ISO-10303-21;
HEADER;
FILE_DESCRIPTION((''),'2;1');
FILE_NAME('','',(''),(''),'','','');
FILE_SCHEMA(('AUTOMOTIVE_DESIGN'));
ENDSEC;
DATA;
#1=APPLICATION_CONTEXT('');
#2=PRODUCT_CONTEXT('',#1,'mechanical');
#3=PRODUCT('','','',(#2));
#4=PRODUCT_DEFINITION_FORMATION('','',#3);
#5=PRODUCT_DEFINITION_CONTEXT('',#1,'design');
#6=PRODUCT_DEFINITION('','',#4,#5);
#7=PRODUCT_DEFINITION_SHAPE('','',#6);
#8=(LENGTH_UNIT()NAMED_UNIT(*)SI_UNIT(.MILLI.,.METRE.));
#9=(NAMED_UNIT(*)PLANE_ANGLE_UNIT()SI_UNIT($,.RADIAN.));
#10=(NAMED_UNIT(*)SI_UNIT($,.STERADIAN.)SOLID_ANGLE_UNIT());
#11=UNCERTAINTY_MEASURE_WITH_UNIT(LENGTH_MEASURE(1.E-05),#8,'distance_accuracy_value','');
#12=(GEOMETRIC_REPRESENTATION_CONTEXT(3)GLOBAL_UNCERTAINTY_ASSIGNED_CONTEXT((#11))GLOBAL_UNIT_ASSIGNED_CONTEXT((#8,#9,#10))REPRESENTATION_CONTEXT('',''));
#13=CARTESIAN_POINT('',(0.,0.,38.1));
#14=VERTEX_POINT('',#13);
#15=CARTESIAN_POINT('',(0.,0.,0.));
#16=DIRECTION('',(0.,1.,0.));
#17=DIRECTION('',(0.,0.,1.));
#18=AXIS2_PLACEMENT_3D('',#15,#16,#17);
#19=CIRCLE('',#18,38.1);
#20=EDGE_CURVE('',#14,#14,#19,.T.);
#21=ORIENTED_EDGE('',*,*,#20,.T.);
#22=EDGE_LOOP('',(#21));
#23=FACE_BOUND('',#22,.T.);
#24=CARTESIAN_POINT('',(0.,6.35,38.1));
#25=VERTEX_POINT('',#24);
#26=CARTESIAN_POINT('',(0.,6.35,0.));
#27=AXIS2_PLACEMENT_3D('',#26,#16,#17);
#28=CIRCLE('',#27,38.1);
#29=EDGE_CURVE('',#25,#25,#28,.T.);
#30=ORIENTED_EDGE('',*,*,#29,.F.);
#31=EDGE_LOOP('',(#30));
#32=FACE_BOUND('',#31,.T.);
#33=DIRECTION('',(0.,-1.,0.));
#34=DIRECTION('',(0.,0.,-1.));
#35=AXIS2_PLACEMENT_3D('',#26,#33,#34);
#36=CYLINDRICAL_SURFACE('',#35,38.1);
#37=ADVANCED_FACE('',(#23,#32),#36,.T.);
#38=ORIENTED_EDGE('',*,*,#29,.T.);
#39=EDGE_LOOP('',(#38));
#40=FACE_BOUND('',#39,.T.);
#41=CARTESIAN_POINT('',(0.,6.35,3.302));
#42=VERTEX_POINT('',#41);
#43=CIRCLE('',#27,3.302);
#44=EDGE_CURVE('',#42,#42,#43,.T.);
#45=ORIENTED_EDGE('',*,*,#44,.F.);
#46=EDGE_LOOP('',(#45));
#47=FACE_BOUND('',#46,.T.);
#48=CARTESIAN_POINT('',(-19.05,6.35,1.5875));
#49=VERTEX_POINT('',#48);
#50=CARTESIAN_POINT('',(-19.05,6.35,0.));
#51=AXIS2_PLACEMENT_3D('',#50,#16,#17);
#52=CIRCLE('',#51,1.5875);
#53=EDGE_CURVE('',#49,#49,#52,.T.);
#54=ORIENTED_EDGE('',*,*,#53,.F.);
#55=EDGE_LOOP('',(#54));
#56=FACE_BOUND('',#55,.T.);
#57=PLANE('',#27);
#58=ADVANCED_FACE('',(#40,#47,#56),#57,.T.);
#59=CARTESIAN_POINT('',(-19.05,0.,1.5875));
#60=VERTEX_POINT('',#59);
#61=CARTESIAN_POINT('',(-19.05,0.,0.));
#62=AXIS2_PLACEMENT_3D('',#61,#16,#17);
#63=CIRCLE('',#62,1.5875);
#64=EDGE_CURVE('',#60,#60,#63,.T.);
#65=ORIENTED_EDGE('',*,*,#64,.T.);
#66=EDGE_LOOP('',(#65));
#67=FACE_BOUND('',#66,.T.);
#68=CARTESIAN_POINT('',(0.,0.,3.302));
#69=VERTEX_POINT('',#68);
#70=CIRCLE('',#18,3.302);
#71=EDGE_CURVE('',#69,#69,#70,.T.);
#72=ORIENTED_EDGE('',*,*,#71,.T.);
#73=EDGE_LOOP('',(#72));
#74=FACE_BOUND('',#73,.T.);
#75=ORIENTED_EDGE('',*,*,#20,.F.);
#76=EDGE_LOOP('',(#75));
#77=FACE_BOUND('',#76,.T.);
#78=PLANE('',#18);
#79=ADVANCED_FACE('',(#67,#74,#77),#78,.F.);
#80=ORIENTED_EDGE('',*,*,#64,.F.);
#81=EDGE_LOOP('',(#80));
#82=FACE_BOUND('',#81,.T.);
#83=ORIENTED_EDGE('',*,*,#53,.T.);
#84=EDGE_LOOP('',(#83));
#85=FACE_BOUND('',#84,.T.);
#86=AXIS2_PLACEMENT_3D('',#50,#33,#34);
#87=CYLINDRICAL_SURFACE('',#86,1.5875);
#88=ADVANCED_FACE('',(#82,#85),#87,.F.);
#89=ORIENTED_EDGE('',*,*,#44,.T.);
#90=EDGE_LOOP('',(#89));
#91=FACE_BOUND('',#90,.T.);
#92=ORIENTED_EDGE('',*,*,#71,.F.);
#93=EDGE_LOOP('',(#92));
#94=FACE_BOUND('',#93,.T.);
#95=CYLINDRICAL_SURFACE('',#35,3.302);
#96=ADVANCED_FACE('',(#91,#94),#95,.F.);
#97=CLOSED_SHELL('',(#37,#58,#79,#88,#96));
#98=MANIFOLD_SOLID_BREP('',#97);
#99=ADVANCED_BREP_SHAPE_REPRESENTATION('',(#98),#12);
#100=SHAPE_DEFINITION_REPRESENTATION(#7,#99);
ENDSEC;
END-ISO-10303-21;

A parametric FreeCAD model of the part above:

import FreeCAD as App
import Part
import Sketcher
Q = App.Units.Quantity

doc = App.newDocument("Part")
params = doc.addObject("Spreadsheet::Sheet", "Params")
for row, (alias, value) in enumerate([
    ("sketch1_diameter", "3 in"),
    ("sketch1_diameter2", "0.26 in"),
    ("sketch1_diameter3", "0.125 in"),
    ("pad1_length", "0.25 in"),
], start=1):
    params.set(f"A{row}", alias)
    params.set(f"B{row}", "=" + value)
    params.setAlias(f"B{row}", alias)

body = doc.addObject("PartDesign::Body", "Body")

# Sketch on XZ plane
sketch1 = body.newObject("Sketcher::SketchObject", "Sketch")
sketch1.AttachmentSupport = (doc.getObject("XZ_Plane"), [""])
sketch1.MapMode = "FlatFace"
sketch1.addGeometry([
    Part.Circle(App.Vector(0, 0, 0), App.Vector(0, 0, 1), 38.1),
    Part.Circle(App.Vector(-19.1, 0, 0), App.Vector(0, 0, 1), 1.6),
    Part.Circle(App.Vector(0, 0, 0), App.Vector(0, 0, 1), 3.3),
], False)
sketch1.addConstraint([
    Sketcher.Constraint("Coincident", 0, 3, -1, 1),
    Sketcher.Constraint("Coincident", 2, 3, -1, 1),
    Sketcher.Constraint("PointOnObject", 1, 3, -1),
    Sketcher.Constraint("Diameter", 0, Q("3 in")),
    Sketcher.Constraint("Diameter", 2, Q("0.26 in")),
    Sketcher.Constraint("Diameter", 1, Q("0.125 in")),
    Sketcher.Constraint("DistanceX", 1, 3, -1, 1, Q("0.75 in")),
])
sketch1.setExpression("Constraints[3]", "Params.sketch1_diameter")
sketch1.setExpression("Constraints[4]", "Params.sketch1_diameter2")
sketch1.setExpression("Constraints[5]", "Params.sketch1_diameter3")
pad1 = body.newObject("PartDesign::Pad", "Pad")
pad1.Profile = sketch1
pad1.setExpression("Length", "Params.pad1_length")
pad1.Reversed = True

doc.recompute()
